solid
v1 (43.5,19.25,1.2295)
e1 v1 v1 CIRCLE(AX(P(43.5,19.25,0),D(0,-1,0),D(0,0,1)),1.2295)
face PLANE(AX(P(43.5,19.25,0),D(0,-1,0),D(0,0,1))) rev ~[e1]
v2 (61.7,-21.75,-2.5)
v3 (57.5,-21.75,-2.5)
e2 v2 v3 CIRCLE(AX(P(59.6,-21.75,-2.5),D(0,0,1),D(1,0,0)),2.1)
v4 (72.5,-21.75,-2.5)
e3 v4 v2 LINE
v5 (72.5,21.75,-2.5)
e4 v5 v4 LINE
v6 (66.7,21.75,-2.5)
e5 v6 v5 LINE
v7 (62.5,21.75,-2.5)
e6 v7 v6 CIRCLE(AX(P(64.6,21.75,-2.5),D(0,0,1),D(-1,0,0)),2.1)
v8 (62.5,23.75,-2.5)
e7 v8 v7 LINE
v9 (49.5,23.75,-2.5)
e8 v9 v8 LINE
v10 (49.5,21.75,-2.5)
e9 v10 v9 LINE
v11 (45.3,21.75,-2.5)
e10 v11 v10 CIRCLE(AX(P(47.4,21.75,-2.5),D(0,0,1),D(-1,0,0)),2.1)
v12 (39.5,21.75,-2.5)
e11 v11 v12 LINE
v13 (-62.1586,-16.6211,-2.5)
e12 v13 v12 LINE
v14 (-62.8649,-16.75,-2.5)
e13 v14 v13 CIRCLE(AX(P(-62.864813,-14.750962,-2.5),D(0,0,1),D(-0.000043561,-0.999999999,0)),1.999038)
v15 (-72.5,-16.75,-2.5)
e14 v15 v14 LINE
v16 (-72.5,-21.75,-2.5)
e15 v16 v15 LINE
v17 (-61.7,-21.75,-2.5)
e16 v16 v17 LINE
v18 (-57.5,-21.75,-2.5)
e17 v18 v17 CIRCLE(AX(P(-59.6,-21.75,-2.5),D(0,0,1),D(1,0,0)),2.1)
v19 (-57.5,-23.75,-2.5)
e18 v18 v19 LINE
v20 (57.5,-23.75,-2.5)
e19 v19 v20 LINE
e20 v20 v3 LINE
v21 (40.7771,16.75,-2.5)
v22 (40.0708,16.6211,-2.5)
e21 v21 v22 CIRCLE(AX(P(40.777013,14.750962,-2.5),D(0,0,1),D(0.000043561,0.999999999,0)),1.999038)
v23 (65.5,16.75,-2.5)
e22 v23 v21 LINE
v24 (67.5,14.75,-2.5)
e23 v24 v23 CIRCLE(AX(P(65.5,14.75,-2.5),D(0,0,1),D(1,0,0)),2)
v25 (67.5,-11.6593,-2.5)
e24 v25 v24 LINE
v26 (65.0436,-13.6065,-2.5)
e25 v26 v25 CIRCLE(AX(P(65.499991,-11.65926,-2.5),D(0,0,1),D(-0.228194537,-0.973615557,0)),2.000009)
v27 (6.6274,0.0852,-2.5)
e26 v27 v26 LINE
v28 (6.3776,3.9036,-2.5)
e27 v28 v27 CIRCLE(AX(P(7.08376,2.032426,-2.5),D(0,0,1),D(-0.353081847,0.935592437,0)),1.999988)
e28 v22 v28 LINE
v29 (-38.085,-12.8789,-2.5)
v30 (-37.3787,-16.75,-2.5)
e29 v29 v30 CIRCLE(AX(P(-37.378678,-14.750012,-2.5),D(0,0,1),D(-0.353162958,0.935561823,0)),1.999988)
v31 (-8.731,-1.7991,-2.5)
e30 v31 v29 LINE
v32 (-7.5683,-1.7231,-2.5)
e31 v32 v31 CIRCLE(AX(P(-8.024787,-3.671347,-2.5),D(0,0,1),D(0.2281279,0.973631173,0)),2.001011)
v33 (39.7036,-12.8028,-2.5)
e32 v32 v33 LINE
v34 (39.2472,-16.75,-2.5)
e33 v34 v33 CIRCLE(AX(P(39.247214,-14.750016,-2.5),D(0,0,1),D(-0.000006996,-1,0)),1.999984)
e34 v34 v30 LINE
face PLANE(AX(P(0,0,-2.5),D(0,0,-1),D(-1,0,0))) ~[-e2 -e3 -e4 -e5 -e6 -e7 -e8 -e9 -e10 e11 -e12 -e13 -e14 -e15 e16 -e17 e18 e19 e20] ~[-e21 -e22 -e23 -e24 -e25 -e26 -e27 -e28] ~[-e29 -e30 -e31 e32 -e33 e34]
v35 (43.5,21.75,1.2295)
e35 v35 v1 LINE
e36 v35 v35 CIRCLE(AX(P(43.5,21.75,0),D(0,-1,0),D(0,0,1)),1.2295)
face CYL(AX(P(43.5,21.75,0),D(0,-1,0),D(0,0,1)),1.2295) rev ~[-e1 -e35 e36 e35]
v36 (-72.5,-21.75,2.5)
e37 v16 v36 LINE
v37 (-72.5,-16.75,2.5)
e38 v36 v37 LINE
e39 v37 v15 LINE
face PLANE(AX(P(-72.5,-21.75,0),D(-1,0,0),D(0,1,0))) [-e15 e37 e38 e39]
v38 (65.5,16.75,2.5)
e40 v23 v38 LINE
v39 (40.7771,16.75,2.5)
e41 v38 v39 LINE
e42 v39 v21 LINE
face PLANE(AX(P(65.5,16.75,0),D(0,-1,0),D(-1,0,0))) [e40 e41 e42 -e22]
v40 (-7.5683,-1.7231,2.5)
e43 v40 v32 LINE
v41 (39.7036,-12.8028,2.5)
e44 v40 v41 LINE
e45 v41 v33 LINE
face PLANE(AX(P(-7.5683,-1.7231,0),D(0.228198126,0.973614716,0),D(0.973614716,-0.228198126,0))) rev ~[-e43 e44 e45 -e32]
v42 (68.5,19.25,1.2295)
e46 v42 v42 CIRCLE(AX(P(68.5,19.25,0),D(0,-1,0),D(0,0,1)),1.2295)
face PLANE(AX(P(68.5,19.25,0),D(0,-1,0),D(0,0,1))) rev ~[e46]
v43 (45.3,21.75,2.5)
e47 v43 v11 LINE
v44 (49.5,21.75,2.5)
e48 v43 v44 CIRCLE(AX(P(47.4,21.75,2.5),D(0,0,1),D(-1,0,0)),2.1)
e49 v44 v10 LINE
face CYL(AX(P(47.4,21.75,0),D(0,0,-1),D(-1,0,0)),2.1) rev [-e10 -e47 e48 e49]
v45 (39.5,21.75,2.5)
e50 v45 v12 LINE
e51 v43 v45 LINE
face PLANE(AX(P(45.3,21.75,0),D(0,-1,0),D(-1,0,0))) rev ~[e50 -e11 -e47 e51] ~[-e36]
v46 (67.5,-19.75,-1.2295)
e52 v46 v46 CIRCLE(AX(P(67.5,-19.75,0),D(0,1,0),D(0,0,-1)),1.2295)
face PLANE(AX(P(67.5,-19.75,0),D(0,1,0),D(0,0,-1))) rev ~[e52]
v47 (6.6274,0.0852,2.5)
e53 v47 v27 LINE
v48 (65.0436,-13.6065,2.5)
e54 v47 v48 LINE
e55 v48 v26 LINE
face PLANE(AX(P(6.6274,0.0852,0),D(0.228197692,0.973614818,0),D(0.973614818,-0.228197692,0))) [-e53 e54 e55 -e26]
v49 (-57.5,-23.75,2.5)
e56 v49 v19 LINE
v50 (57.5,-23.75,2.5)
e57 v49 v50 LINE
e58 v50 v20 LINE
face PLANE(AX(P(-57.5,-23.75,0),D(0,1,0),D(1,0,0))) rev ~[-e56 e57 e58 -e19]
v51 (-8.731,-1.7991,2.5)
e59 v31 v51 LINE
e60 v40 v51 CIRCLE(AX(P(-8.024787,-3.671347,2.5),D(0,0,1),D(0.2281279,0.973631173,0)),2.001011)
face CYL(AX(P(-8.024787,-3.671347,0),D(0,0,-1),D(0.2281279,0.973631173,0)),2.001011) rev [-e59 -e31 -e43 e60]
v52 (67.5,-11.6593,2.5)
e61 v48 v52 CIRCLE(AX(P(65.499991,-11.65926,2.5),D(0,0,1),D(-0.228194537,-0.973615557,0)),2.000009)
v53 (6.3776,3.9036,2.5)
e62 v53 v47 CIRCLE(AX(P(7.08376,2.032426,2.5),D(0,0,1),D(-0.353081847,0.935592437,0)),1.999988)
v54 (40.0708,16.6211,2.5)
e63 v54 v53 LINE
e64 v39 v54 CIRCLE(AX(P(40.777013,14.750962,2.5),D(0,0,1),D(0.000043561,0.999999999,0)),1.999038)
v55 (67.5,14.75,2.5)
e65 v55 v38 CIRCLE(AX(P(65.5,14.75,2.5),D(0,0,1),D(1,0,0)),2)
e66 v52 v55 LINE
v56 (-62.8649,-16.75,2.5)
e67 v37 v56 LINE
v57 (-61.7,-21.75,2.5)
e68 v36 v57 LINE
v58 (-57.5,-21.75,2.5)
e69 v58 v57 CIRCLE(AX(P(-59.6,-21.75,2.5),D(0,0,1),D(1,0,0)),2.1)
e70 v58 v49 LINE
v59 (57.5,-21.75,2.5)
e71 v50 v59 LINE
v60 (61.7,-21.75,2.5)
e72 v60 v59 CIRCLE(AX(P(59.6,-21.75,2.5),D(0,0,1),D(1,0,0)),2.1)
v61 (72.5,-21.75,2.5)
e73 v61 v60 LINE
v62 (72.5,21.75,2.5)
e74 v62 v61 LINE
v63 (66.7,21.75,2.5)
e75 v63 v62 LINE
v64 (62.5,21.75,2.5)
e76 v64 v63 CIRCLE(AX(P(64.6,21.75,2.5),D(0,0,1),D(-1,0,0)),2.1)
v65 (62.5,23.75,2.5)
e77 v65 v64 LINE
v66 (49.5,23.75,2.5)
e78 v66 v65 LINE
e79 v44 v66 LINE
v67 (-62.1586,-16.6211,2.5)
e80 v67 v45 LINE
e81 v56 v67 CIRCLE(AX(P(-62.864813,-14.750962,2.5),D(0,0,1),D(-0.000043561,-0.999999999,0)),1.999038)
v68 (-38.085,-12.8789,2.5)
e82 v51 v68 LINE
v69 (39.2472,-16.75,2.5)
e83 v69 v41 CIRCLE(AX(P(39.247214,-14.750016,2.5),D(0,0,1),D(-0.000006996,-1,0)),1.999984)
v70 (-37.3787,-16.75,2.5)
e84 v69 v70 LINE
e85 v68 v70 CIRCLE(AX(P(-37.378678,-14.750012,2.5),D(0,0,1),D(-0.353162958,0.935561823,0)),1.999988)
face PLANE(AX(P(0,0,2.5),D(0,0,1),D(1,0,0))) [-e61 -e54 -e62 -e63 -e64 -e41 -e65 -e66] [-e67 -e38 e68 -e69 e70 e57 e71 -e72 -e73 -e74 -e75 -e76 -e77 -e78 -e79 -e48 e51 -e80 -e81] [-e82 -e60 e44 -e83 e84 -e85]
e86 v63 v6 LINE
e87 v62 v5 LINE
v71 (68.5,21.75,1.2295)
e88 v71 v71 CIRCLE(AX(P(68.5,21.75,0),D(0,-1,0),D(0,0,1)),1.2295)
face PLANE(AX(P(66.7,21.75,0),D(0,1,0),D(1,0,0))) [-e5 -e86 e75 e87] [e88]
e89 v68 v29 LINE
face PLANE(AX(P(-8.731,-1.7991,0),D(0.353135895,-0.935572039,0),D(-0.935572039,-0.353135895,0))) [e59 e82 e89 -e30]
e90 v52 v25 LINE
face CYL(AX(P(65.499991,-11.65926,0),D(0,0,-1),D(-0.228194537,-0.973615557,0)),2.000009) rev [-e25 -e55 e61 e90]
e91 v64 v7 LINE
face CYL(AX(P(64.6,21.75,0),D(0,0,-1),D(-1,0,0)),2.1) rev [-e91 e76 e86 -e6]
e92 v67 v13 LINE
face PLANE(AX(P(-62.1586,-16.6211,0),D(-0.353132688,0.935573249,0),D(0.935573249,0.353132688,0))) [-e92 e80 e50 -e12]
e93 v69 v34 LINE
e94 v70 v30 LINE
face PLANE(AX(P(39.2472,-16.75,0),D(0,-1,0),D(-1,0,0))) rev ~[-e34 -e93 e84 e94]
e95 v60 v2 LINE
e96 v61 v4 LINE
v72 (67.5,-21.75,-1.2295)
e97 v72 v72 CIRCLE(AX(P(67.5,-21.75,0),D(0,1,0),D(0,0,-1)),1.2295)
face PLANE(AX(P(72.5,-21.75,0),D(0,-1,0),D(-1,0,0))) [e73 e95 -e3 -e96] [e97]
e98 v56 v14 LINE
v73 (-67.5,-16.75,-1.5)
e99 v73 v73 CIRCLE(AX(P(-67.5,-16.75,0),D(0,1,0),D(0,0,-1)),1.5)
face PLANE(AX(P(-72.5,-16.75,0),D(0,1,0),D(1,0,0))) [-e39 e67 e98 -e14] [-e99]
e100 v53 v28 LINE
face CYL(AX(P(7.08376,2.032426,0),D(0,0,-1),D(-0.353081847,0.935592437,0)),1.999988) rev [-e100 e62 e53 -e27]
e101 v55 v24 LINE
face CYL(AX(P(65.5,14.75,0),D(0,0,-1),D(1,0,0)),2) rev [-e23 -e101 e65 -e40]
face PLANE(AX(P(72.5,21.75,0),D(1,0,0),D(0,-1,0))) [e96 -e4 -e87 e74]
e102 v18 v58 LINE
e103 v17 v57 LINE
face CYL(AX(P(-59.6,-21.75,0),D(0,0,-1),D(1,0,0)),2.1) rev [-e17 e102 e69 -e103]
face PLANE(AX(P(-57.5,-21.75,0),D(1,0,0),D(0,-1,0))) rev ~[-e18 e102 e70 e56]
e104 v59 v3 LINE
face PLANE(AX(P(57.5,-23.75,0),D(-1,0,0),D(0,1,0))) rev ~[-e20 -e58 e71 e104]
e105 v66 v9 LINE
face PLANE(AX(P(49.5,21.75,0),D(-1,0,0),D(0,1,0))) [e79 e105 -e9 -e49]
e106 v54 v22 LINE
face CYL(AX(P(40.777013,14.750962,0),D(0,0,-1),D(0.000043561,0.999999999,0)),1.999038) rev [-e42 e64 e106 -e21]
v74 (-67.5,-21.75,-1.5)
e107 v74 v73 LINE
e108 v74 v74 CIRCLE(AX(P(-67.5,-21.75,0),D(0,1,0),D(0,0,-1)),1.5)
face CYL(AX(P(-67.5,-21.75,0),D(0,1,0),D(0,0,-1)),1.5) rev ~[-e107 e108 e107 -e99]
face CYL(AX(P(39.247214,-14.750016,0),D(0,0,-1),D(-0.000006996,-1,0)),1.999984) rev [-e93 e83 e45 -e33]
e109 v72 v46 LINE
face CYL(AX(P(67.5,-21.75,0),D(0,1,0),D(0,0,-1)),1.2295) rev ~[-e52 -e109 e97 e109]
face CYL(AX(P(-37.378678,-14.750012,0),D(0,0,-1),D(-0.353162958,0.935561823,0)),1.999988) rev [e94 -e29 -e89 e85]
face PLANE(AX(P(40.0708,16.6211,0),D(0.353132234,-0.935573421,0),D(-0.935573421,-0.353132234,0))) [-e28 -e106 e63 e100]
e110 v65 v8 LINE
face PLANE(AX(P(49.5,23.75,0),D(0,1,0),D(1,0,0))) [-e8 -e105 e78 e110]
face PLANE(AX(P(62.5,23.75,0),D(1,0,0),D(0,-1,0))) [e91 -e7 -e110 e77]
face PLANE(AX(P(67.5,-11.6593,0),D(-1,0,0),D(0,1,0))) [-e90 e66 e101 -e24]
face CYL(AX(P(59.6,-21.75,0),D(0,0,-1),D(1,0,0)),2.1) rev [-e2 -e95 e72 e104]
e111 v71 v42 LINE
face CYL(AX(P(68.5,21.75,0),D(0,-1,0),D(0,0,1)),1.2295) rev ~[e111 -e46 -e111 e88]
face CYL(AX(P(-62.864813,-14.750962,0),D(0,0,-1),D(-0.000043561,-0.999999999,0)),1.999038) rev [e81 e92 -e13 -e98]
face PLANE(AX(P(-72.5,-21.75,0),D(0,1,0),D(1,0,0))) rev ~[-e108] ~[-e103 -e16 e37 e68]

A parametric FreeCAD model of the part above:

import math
import FreeCAD as App
import Part
import Sketcher
Q = App.Units.Quantity

doc = App.newDocument("Part")
body = doc.addObject("PartDesign::Body", "Body")

# Sketch on XY plane
sketch1 = body.newObject("Sketcher::SketchObject", "Sketch")
sketch1.AttachmentSupport = (doc.getObject("XY_Plane"), [""])
sketch1.MapMode = "FlatFace"
sketch1.addGeometry([
    Part.LineSegment(App.Vector(-72.5, -16.8, 0), App.Vector(-72.5, -21.8, 0)),  # 0
    Part.LineSegment(App.Vector(-72.5, -21.8, 0), App.Vector(-61.7, -21.8, 0)),  # 1
    Part.ArcOfCircle(Part.Circle(App.Vector(-59.6, -21.8, 0), App.Vector(0, 0, 1), 2.1), math.radians(0), math.radians(180)),  # 2
    Part.LineSegment(App.Vector(-57.5, -21.8, 0), App.Vector(-57.5, -23.8, 0)),  # 3
    Part.LineSegment(App.Vector(-57.5, -23.8, 0), App.Vector(57.5, -23.8, 0)),  # 4
    Part.LineSegment(App.Vector(57.5, -23.8, 0), App.Vector(57.5, -21.8, 0)),  # 5
    Part.ArcOfCircle(Part.Circle(App.Vector(59.6, -21.8, 0), App.Vector(0, 0, 1), 2.1), math.radians(0), math.radians(180)),  # 6
    Part.LineSegment(App.Vector(61.7, -21.8, 0), App.Vector(72.5, -21.8, 0)),  # 7
    Part.LineSegment(App.Vector(72.5, -21.8, 0), App.Vector(72.5, 21.8, 0)),  # 8
    Part.LineSegment(App.Vector(72.5, 21.8, 0), App.Vector(66.7, 21.8, 0)),  # 9
    Part.ArcOfCircle(Part.Circle(App.Vector(64.6, 21.8, 0), App.Vector(0, 0, 1), 2.1), math.radians(180), math.radians(360)),  # 10
    Part.LineSegment(App.Vector(62.5, 21.8, 0), App.Vector(62.5, 23.8, 0)),  # 11
    Part.LineSegment(App.Vector(62.5, 23.8, 0), App.Vector(49.5, 23.8, 0)),  # 12
    Part.LineSegment(App.Vector(49.5, 23.8, 0), App.Vector(49.5, 21.8, 0)),  # 13
    Part.ArcOfCircle(Part.Circle(App.Vector(47.4, 21.8, 0), App.Vector(0, 0, 1), 2.1), math.radians(180), math.radians(360)),  # 14
    Part.LineSegment(App.Vector(45.3, 21.8, 0), App.Vector(39.5, 21.8, 0)),  # 15
    Part.LineSegment(App.Vector(39.5, 21.8, 0), App.Vector(-62.2, -16.6, 0)),  # 16
    Part.ArcOfCircle(Part.Circle(App.Vector(-62.9, -14.8, 0), App.Vector(0, 0, 1), 2), math.radians(-90), math.radians(-69)),  # 17
    Part.LineSegment(App.Vector(-62.9, -16.8, 0), App.Vector(-72.5, -16.8, 0)),  # 18
    Part.LineSegment(App.Vector(-38.1, -12.9, 0), App.Vector(-8.7, -1.8, 0)),  # 19
    Part.ArcOfCircle(Part.Circle(App.Vector(-8, -3.7, 0), App.Vector(0, 0, 1), 2), math.radians(77), math.radians(111)),  # 20
    Part.LineSegment(App.Vector(-7.6, -1.7, 0), App.Vector(39.7, -12.8, 0)),  # 21
    Part.ArcOfCircle(Part.Circle(App.Vector(39.2, -14.8, 0), App.Vector(0, 0, 1), 2), math.radians(-90), math.radians(77)),  # 22
    Part.LineSegment(App.Vector(39.2, -16.8, 0), App.Vector(-37.4, -16.8, 0)),  # 23
    Part.ArcOfCircle(Part.Circle(App.Vector(-37.4, -14.8, 0), App.Vector(0, 0, 1), 2), math.radians(111), math.radians(270)),  # 24
    Part.LineSegment(App.Vector(40.8, 16.8, 0), App.Vector(65.5, 16.8, 0)),  # 25
    Part.ArcOfCircle(Part.Circle(App.Vector(65.5, 14.8, 0), App.Vector(0, 0, 1), 2), math.radians(0), math.radians(90)),  # 26
    Part.LineSegment(App.Vector(67.5, 14.8, 0), App.Vector(67.5, -11.7, 0)),  # 27
    Part.ArcOfCircle(Part.Circle(App.Vector(65.5, -11.7, 0), App.Vector(0, 0, 1), 2), math.radians(-103), math.radians(0)),  # 28
    Part.LineSegment(App.Vector(65, -13.6, 0), App.Vector(6.6, 0.1, 0)),  # 29
    Part.ArcOfCircle(Part.Circle(App.Vector(7.1, 2, 0), App.Vector(0, 0, 1), 2), math.radians(111), math.radians(257)),  # 30
    Part.LineSegment(App.Vector(6.4, 3.9, 0), App.Vector(40.1, 16.6, 0)),  # 31
    Part.ArcOfCircle(Part.Circle(App.Vector(40.8, 14.8, 0), App.Vector(0, 0, 1), 2), math.radians(90), math.radians(111)),  # 32
], False)
sketch1.addConstraint([
    Sketcher.Constraint("Coincident", 0, 2, 1, 1),
    Sketcher.Constraint("Coincident", 1, 2, 2, 2),
    Sketcher.Constraint("Tangent", 2, 1, 3, 1),
    Sketcher.Constraint("Coincident", 3, 2, 4, 1),
    Sketcher.Constraint("Coincident", 4, 2, 5, 1),
    Sketcher.Constraint("Tangent", 5, 2, 6, 2),
    Sketcher.Constraint("Coincident", 6, 1, 7, 1),
    Sketcher.Constraint("Coincident", 7, 2, 8, 1),
    Sketcher.Constraint("Coincident", 8, 2, 9, 1),
    Sketcher.Constraint("Coincident", 9, 2, 10, 2),
    Sketcher.Constraint("Tangent", 10, 1, 11, 1),
    Sketcher.Constraint("Coincident", 11, 2, 12, 1),
    Sketcher.Constraint("Coincident", 12, 2, 13, 1),
    Sketcher.Constraint("Tangent", 13, 2, 14, 2),
    Sketcher.Constraint("Coincident", 14, 1, 15, 1),
    Sketcher.Constraint("Coincident", 15, 2, 16, 1),
    Sketcher.Constraint("Tangent", 16, 2, 17, 2),
    Sketcher.Constraint("Tangent", 17, 1, 18, 1),
    Sketcher.Constraint("Coincident", 18, 2, 0, 1),
    Sketcher.Constraint("Tangent", 19, 2, 20, 2),
    Sketcher.Constraint("Tangent", 20, 1, 21, 1),
    Sketcher.Constraint("Tangent", 21, 2, 22, 2),
    Sketcher.Constraint("Tangent", 22, 1, 23, 1),
    Sketcher.Constraint("Tangent", 23, 2, 24, 2),
    Sketcher.Constraint("Tangent", 24, 1, 19, 1),
    Sketcher.Constraint("Tangent", 25, 2, 26, 2),
    Sketcher.Constraint("Tangent", 26, 1, 27, 1),
    Sketcher.Constraint("Tangent", 27, 2, 28, 2),
    Sketcher.Constraint("Tangent", 28, 1, 29, 1),
    Sketcher.Constraint("Tangent", 29, 2, 30, 2),
    Sketcher.Constraint("Tangent", 30, 1, 31, 1),
    Sketcher.Constraint("Tangent", 31, 2, 32, 2),
    Sketcher.Constraint("Tangent", 32, 1, 25, 1),
    Sketcher.Constraint("Vertical", 0),
    Sketcher.Constraint("Horizontal", 1),
    Sketcher.Constraint("Vertical", 3),
    Sketcher.Constraint("Horizontal", 4),
    Sketcher.Constraint("Vertical", 5),
    Sketcher.Constraint("Horizontal", 7),
    Sketcher.Constraint("Vertical", 8),
    Sketcher.Constraint("Horizontal", 9),
    Sketcher.Constraint("Vertical", 11),
    Sketcher.Constraint("Horizontal", 12),
    Sketcher.Constraint("Vertical", 13),
    Sketcher.Constraint("Horizontal", 15),
    Sketcher.Constraint("Horizontal", 18),
    Sketcher.Constraint("Horizontal", 23),
    Sketcher.Constraint("Horizontal", 25),
    Sketcher.Constraint("Vertical", 27),
    Sketcher.Constraint("Equal", 2, 6),
    Sketcher.Constraint("Equal", 6, 10),
    Sketcher.Constraint("Equal", 10, 14),
    Sketcher.Constraint("Equal", 17, 22),
    Sketcher.Constraint("Equal", 22, 24),
    Sketcher.Constraint("Equal", 24, 26),
    Sketcher.Constraint("Equal", 26, 28),
    Sketcher.Constraint("Equal", 28, 30),
    Sketcher.Constraint("Equal", 30, 32),
    Sketcher.Constraint("Symmetric", 0, 2, 8, 2, -1, 1),
    Sketcher.Constraint("Symmetric", 2, 3, 6, 3, -2),
    Sketcher.Constraint("Parallel", 16, 19),
    Sketcher.Constraint("Parallel", 21, 29),
    Sketcher.Constraint("Parallel", 19, 31),
    Sketcher.Constraint("Horizontal", 10, 3, 14, 3),
    Sketcher.Constraint("Horizontal", 17, 3, 22, 3),
    Sketcher.Constraint("Horizontal", 6, 3, 0, 2),
    Sketcher.Constraint("Horizontal", 5, 2, 6, 1),
    Sketcher.Constraint("Horizontal", 14, 3, 8, 2),
    Sketcher.Constraint("Horizontal", 13, 2, 14, 1),
    Sketcher.Constraint("Equal", 9, 15),
    Sketcher.Constraint("Equal", 5, 11),
    Sketcher.Constraint("Radius", 17, Q("2 mm")),
    Sketcher.Constraint("Radius", 2, Q("2.1 mm")),
    Sketcher.Constraint("DistanceY", 0, 2, 0, 1, Q("5 mm")),
    Sketcher.Constraint("DistanceY", 3, 2, 3, 1, Q("2 mm")),
    Sketcher.Constraint("DistanceY", 8, 1, 8, 2, Q("43.5 mm")),
    Sketcher.Constraint("DistanceX", 6, 3, 10, 3, Q("5 mm")),
    Sketcher.Constraint("DistanceX", 10, 1, 8, 2, Q("10 mm")),
    Sketcher.Constraint("DistanceY", 25, 2, 10, 3, Q("5 mm")),
    Sketcher.Constraint("DistanceX", 26, 1, 8, 2, Q("5 mm")),
    Sketcher.Constraint("DistanceX", 4, 1, 4, 2, Q("115 mm")),
    Sketcher.Constraint("DistanceX", 12, 2, 12, 1, Q("13 mm")),
    Sketcher.Constraint("Radius", 20, Q("2.001 mm")),
    Sketcher.Constraint("Angle", 16, Q("-159.321 deg")),
    Sketcher.Constraint("Angle", 21, Q("-13.191 deg")),
    Sketcher.Constraint("DistanceX", 23, 2, 23, 1, Q("76.626 mm")),
    Sketcher.Constraint("DistanceX", 25, 1, 25, 2, Q("24.723 mm")),
    Sketcher.Constraint("DistanceX", 17, 3, 20, 3, Q("54.84 mm")),
    Sketcher.Constraint("DistanceY", 27, 2, 27, 1, Q("26.4093 mm")),
])
pad1 = body.newObject("PartDesign::Pad", "Pad")
pad1.Profile = sketch1
pad1.Length = 2.5
doc.recompute()

mirrored = body.newObject("PartDesign::Mirrored", "Mirrored")
mirrored.Originals = [pad1]
mirrored.MirrorPlane = (doc.getObject("XY_Plane"), [""])
body.Tip = mirrored

# Sketch on XZ plane
sketch2 = body.newObject("Sketcher::SketchObject", "Sketch001")
sketch2.AttachmentSupport = (doc.getObject("XZ_Plane"), [""])
sketch2.MapMode = "FlatFace"
sketch2.AttachmentOffset = App.Placement(App.Vector(0, 0, 21.75), App.Rotation())
sketch2.addGeometry(Part.Circle(App.Vector(67.5, 0, 0), App.Vector(0, 0, 1), 1.2), False)
sketch2.addConstraint([
    Sketcher.Constraint("PointOnObject", 0, 3, -1),
    Sketcher.Constraint("Diameter", 0, Q("2.459 mm")),
    Sketcher.Constraint("DistanceX", -1, 1, 0, 3, Q("67.5 mm")),
])
doc.recompute()
hole = body.newObject("PartDesign::Hole", "Hole")
hole.Profile = sketch2
hole.ThreadType = "None"
hole.Diameter = 2.459
hole.DepthType = "Dimension"
hole.Depth = 2
hole.DrillPoint = "Flat"

# Sketch on XZ plane
sketch3 = body.newObject("Sketcher::SketchObject", "Sketch002")
sketch3.AttachmentSupport = (doc.getObject("XZ_Plane"), [""])
sketch3.MapMode = "FlatFace"
sketch3.AttachmentOffset = App.Placement(App.Vector(0, 0, -21.75), App.Rotation())
sketch3.addGeometry([
    Part.Circle(App.Vector(68.5, 0, 0), App.Vector(0, 0, 1), 1.2),
    Part.Circle(App.Vector(43.5, 0, 0), App.Vector(0, 0, 1), 1.2),
], False)
sketch3.addConstraint([
    Sketcher.Constraint("Equal", 0, 1),
    Sketcher.Constraint("PointOnObject", 0, 3, -1),
    Sketcher.Constraint("PointOnObject", 1, 3, -1),
    Sketcher.Constraint("Diameter", 0, Q("2.459 mm")),
    Sketcher.Constraint("DistanceX", 1, 3, 0, 3, Q("25 mm")),
    Sketcher.Constraint("DistanceX", -1, 1, 0, 3, Q("68.5 mm")),
])
doc.recompute()
hole2 = body.newObject("PartDesign::Hole", "Hole001")
hole2.Profile = sketch3
hole2.ThreadType = "None"
hole2.Diameter = 2.459
hole2.DepthType = "Dimension"
hole2.Depth = 2.5
hole2.DrillPoint = "Flat"
hole2.Reversed = True

# Sketch on XZ plane
sketch4 = body.newObject("Sketcher::SketchObject", "Sketch003")
sketch4.AttachmentSupport = (doc.getObject("XZ_Plane"), [""])
sketch4.MapMode = "FlatFace"
sketch4.AttachmentOffset = App.Placement(App.Vector(0, 0, 21.75), App.Rotation())
sketch4.addGeometry(Part.Circle(App.Vector(-67.5, 0, 0), App.Vector(0, 0, 1), 1.5), False)
sketch4.addConstraint([
    Sketcher.Constraint("PointOnObject", 0, 3, -1),
    Sketcher.Constraint("Diameter", 0, Q("3 mm")),
    Sketcher.Constraint("DistanceX", 0, 3, -1, 1, Q("67.5 mm")),
])
doc.recompute()
hole3 = body.newObject("PartDesign::Hole", "Hole002")
hole3.Profile = sketch4
hole3.ThreadType = "None"
hole3.Diameter = 3
hole3.DepthType = "ThroughAll"

doc.recompute()
